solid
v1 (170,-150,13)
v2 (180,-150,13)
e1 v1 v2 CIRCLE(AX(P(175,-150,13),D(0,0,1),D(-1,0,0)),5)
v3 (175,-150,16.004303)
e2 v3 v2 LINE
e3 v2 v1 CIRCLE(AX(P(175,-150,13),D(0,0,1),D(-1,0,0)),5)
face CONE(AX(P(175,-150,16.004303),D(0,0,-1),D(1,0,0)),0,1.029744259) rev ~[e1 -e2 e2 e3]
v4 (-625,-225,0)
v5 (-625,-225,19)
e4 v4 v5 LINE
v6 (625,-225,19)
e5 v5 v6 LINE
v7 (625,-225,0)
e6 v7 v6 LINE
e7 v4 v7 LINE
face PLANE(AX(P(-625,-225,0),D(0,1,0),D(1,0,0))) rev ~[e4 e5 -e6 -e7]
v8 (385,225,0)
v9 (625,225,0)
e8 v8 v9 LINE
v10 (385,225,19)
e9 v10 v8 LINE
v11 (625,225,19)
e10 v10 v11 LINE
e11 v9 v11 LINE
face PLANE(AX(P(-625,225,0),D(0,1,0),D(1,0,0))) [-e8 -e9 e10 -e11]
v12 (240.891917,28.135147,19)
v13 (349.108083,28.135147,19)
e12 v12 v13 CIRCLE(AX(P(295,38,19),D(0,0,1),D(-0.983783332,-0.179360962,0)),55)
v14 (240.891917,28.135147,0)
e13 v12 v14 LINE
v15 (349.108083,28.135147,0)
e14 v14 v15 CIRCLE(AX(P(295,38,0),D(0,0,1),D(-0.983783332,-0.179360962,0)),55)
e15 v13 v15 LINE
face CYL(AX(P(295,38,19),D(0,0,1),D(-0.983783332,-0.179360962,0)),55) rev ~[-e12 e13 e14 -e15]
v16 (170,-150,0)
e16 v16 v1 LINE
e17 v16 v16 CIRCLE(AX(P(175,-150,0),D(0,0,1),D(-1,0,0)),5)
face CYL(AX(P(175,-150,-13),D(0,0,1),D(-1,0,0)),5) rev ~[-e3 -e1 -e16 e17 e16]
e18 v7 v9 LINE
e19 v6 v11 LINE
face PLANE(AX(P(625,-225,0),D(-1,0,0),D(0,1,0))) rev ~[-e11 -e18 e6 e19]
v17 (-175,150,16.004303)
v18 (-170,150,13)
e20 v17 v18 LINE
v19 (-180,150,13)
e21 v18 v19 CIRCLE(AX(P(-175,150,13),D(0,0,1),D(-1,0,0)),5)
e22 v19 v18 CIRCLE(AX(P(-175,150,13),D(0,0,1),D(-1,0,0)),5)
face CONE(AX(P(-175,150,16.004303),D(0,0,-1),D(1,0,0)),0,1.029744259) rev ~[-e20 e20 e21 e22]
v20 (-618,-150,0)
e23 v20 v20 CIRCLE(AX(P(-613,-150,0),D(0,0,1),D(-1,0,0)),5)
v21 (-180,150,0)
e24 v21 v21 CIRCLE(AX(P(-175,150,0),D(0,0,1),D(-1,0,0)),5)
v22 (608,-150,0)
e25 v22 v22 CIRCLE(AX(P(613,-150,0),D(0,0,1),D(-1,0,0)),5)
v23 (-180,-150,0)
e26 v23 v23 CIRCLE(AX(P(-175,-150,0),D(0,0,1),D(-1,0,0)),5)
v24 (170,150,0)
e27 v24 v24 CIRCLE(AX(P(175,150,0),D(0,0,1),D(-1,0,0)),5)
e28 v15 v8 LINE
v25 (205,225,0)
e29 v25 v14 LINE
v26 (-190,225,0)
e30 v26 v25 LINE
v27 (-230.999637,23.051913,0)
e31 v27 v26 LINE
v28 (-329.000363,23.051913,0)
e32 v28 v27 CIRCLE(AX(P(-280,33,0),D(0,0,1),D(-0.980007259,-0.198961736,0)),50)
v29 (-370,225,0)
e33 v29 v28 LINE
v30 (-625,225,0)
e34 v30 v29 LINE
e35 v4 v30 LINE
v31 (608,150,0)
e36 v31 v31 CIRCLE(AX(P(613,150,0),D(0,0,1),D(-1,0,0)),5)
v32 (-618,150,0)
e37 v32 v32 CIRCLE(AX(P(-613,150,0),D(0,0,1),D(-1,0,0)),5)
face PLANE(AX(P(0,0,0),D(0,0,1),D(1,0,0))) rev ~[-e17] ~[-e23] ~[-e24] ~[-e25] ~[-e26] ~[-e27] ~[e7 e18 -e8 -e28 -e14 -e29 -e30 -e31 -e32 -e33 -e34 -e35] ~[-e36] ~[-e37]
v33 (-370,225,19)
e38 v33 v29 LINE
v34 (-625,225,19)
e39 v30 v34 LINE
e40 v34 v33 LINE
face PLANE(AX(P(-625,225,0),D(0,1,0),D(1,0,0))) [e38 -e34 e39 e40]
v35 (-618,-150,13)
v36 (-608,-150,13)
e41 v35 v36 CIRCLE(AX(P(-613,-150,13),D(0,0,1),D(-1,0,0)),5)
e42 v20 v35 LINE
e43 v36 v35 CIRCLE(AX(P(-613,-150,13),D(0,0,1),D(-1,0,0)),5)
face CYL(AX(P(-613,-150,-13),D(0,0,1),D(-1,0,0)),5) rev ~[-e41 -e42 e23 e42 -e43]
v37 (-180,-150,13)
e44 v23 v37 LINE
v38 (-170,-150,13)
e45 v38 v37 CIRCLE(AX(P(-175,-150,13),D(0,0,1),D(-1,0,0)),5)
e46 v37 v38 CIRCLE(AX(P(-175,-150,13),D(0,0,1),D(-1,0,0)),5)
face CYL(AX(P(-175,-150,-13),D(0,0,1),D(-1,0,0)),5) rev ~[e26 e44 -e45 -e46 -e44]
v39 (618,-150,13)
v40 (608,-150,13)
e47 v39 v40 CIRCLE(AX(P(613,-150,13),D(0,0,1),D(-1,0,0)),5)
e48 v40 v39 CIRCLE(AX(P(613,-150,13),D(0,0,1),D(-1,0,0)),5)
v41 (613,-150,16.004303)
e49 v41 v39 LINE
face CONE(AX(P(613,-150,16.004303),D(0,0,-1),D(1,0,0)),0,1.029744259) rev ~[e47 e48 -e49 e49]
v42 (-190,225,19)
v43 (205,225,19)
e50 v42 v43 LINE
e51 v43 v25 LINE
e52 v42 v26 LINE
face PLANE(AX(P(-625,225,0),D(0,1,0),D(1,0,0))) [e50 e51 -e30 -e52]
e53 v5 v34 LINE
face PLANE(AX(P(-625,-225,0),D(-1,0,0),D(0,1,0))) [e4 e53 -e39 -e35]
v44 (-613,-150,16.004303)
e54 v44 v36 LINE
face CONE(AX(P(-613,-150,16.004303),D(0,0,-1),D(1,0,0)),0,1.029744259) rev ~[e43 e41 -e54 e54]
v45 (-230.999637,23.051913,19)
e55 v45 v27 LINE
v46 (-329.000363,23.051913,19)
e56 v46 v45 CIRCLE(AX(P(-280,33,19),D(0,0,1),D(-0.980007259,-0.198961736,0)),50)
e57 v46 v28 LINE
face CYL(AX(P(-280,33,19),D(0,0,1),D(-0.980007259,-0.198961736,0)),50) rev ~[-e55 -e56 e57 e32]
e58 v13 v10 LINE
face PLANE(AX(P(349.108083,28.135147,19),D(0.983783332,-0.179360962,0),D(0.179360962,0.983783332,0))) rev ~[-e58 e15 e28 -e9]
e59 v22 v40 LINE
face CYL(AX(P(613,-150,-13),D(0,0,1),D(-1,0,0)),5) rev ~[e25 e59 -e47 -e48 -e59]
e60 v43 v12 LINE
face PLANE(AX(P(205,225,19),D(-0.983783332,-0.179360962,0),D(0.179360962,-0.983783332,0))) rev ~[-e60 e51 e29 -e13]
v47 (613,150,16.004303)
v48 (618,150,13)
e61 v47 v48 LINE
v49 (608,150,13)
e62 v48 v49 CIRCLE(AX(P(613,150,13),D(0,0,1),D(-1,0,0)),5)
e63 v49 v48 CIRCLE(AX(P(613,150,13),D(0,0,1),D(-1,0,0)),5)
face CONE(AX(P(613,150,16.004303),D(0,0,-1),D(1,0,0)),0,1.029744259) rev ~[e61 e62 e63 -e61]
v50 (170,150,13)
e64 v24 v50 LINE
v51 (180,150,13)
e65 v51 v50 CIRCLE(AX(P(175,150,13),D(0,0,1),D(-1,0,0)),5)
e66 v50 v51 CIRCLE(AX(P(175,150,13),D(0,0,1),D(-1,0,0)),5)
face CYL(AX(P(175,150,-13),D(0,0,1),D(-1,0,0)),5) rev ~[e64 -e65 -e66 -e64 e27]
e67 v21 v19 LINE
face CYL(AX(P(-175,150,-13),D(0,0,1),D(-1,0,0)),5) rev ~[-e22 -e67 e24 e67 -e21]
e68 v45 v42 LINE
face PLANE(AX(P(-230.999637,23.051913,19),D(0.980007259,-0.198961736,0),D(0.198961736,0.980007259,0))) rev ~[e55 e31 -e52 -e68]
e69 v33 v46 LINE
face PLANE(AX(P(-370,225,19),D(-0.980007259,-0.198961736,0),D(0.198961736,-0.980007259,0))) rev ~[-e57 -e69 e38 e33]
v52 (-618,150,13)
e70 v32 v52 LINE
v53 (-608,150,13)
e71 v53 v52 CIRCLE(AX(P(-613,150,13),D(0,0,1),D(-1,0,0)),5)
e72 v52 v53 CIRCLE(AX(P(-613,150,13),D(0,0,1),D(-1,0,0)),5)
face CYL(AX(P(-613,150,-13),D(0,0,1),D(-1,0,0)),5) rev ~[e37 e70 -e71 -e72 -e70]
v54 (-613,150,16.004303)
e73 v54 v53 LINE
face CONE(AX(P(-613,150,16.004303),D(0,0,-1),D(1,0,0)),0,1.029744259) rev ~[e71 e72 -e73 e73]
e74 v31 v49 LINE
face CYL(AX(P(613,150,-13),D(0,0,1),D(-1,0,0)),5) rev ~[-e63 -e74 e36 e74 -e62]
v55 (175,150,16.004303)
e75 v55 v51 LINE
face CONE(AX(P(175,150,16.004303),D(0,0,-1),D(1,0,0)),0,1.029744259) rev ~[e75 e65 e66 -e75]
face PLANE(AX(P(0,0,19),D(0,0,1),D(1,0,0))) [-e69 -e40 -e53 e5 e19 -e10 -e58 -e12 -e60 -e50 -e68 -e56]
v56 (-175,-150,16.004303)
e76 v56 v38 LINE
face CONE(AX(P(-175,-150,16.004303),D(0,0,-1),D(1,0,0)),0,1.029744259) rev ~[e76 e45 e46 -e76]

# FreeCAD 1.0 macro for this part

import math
import FreeCAD as App
import Part
import Sketcher

V = App.Vector
Q = App.Units.Quantity


def add_polygon(sketch, points):
    """Adds a closed chain of lines whose ends are joined by coincident constraints."""
    first, n = sketch.GeometryCount, len(points)
    for a, b in zip(points, points[1:] + points[:1]):
        sketch.addGeometry(Part.LineSegment(App.Vector(*a, 0), App.Vector(*b, 0)), False)
    for i in range(n):
        sketch.addConstraint(Sketcher.Constraint("Coincident", first + i, 2, first + (i + 1) % n, 1))

doc = App.newDocument("Part")
body = doc.addObject("PartDesign::Body", "Body")

# Sketch on XY plane
sketch1 = body.newObject("Sketcher::SketchObject", "Sketch")
sketch1.AttachmentSupport = (doc.getObject("XY_Plane"), [""])
sketch1.MapMode = "FlatFace"
add_polygon(sketch1, [(-625, 225), (-625, -225), (625, -225), (625, 225)])  # lines 0-3
sketch1.addConstraint([
    Sketcher.Constraint("Vertical", 0),
    Sketcher.Constraint("Horizontal", 1),
    Sketcher.Constraint("Vertical", 2),
    Sketcher.Constraint("Horizontal", 3),
    Sketcher.Constraint("Symmetric", 0, 2, 2, 2, -1, 1),
    Sketcher.Constraint("DistanceX", 1, 1, 1, 2, Q("1250 mm")),
    Sketcher.Constraint("DistanceY", 0, 2, 0, 1, Q("450 mm")),
])
pad1 = body.newObject("PartDesign::Pad", "Pad")
pad1.Profile = sketch1
pad1.Length = 19

# Sketch on XY plane
sketch2 = body.newObject("Sketcher::SketchObject", "Sketch001")
sketch2.AttachmentSupport = (doc.getObject("XY_Plane"), [""])
sketch2.MapMode = "FlatFace"
sketch2.AttachmentOffset = App.Placement(V(0, 0, 19), App.Rotation())
sketch2.addGeometry([
    Part.LineSegment(V(-190, 225, 0), V(-370, 225, 0)),
    Part.LineSegment(V(-370, 225, 0), V(-329, 23, 0)),
    Part.ArcOfCircle(Part.Circle(V(-280, 33, 0), V(0, 0, 1), 50), math.radians(-169), math.radians(-11)),
    Part.LineSegment(V(-231, 23, 0), V(-190, 225, 0)),
], False)
sketch2.addConstraint([
    Sketcher.Constraint("Coincident", 0, 2, 1, 1),
    Sketcher.Constraint("Tangent", 1, 2, 2, 1),
    Sketcher.Constraint("Tangent", 2, 2, 3, 1),
    Sketcher.Constraint("Coincident", 3, 2, 0, 1),
    Sketcher.Constraint("Horizontal", 0),
    Sketcher.Constraint("Horizontal", 1, 2, 2, 2),
    Sketcher.Constraint("Radius", 2, Q("50 mm")),
    Sketcher.Constraint("DistanceX", 0, 2, 0, 1, Q("180 mm")),
    Sketcher.Constraint("DistanceX", 2, 3, -1, 1, Q("280 mm")),
    Sketcher.Constraint("DistanceY", -1, 1, 2, 3, Q("33 mm")),
    Sketcher.Constraint("DistanceY", -1, 1, 0, 2, Q("225 mm")),
])
pocket1 = body.newObject("PartDesign::Pocket", "Pocket")
pocket1.Profile = sketch2
pocket1.Type = "ThroughAll"

# Sketch on XY plane
sketch3 = body.newObject("Sketcher::SketchObject", "Sketch002")
sketch3.AttachmentSupport = (doc.getObject("XY_Plane"), [""])
sketch3.MapMode = "FlatFace"
sketch3.AttachmentOffset = App.Placement(V(0, 0, 19), App.Rotation())
sketch3.addGeometry([
    Part.LineSegment(V(385, 225, 0), V(205, 225, 0)),
    Part.LineSegment(V(205, 225, 0), V(241, 28, 0)),
    Part.ArcOfCircle(Part.Circle(V(295, 38, 0), V(0, 0, 1), 55), math.radians(-170), math.radians(-10)),
    Part.LineSegment(V(349, 28, 0), V(385, 225, 0)),
], False)
sketch3.addConstraint([
    Sketcher.Constraint("Coincident", 0, 2, 1, 1),
    Sketcher.Constraint("Tangent", 1, 2, 2, 1),
    Sketcher.Constraint("Tangent", 2, 2, 3, 1),
    Sketcher.Constraint("Coincident", 3, 2, 0, 1),
    Sketcher.Constraint("Horizontal", 0),
    Sketcher.Constraint("Horizontal", 1, 2, 2, 2),
    Sketcher.Constraint("Radius", 2, Q("55 mm")),
    Sketcher.Constraint("DistanceX", 0, 2, 0, 1, Q("180 mm")),
    Sketcher.Constraint("DistanceX", -1, 1, 2, 3, Q("295 mm")),
    Sketcher.Constraint("DistanceY", -1, 1, 2, 3, Q("38 mm")),
    Sketcher.Constraint("DistanceY", -1, 1, 0, 2, Q("225 mm")),
])
pocket2 = body.newObject("PartDesign::Pocket", "Pocket001")
pocket2.Profile = sketch3
pocket2.Type = "ThroughAll"

# Sketch on XY plane
sketch4 = body.newObject("Sketcher::SketchObject", "Sketch003")
sketch4.AttachmentSupport = (doc.getObject("XY_Plane"), [""])
sketch4.MapMode = "FlatFace"
sketch4.addGeometry([
    Part.Circle(V(-613, -150, 0), V(0, 0, 1), 5),  # 0
    Part.Circle(V(-175, -150, 0), V(0, 0, 1), 5),  # 1
    Part.Circle(V(175, -150, 0), V(0, 0, 1), 5),  # 2
    Part.Circle(V(613, -150, 0), V(0, 0, 1), 5),  # 3
    Part.Circle(V(-613, 150, 0), V(0, 0, 1), 5),  # 4
    Part.Circle(V(-175, 150, 0), V(0, 0, 1), 5),  # 5
    Part.Circle(V(175, 150, 0), V(0, 0, 1), 5),  # 6
    Part.Circle(V(613, 150, 0), V(0, 0, 1), 5),  # 7
], False)
sketch4.addConstraint([
    Sketcher.Constraint("Equal", 0, 1),
    Sketcher.Constraint("Equal", 1, 2),
    Sketcher.Constraint("Equal", 2, 3),
    Sketcher.Constraint("Equal", 3, 4),
    Sketcher.Constraint("Equal", 4, 5),
    Sketcher.Constraint("Equal", 5, 6),
    Sketcher.Constraint("Equal", 6, 7),
    Sketcher.Constraint("Symmetric", 3, 3, 4, 3, -1, 1),
    Sketcher.Constraint("Symmetric", 2, 3, 5, 3, -1, 1),
    Sketcher.Constraint("Symmetric", 1, 3, 6, 3, -1, 1),
    Sketcher.Constraint("Symmetric", 0, 3, 7, 3, -1, 1),
    Sketcher.Constraint("Symmetric", 1, 3, 2, 3, -2),
    Sketcher.Constraint("Symmetric", 0, 3, 3, 3, -2),
    Sketcher.Constraint("Horizontal", 0, 3, 1, 3),
    Sketcher.Constraint("Diameter", 0, Q("10 mm")),
    Sketcher.Constraint("DistanceX", 0, 3, -1, 1, Q("613 mm")),
    Sketcher.Constraint("DistanceY", 0, 3, -1, 1, Q("150 mm")),
    Sketcher.Constraint("DistanceX", 1, 3, -1, 1, Q("175 mm")),
])
doc.recompute()
hole = body.newObject("PartDesign::Hole", "Hole")
hole.Profile = sketch4
hole.ThreadType = "None"
hole.Diameter = 10
hole.DepthType = "Dimension"
hole.Depth = 13
hole.DrillPoint = "Angled"
hole.DrillPointAngle = 118
hole.Reversed = True

doc.recompute()
